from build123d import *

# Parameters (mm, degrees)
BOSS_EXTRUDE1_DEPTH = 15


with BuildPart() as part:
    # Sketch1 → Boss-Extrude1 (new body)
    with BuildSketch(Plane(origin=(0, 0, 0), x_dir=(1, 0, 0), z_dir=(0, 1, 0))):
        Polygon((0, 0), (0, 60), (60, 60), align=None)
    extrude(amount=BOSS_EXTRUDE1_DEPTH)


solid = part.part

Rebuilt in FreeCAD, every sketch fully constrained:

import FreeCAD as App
import Part
import Sketcher
Q = App.Units.Quantity

doc = App.newDocument("Part")
params = doc.addObject("Spreadsheet::Sheet", "Params")
for row, (alias, value) in enumerate([
    ("sketch1_width", "60 mm"),
    ("pad1_length", "15 mm"),
], start=1):
    params.set(f"A{row}", alias)
    params.set(f"B{row}", "=" + value)
    params.setAlias(f"B{row}", alias)

body = doc.addObject("PartDesign::Body", "Body")

# Sketch on XZ plane
sketch1 = body.newObject("Sketcher::SketchObject", "Sketch")
sketch1.AttachmentSupport = (doc.getObject("XZ_Plane"), [""])
sketch1.MapMode = "FlatFace"
sketch1.addGeometry([
    Part.LineSegment(App.Vector(0, -60, 0), App.Vector(0, 0, 0)),
    Part.LineSegment(App.Vector(0, 0, 0), App.Vector(60, -60, 0)),
    Part.LineSegment(App.Vector(60, -60, 0), App.Vector(0, -60, 0)),
], False)
sketch1.addConstraint([
    Sketcher.Constraint("Coincident", 0, 2, 1, 1),
    Sketcher.Constraint("Coincident", 1, 2, 2, 1),
    Sketcher.Constraint("Coincident", 2, 2, 0, 1),
    Sketcher.Constraint("Vertical", 0),
    Sketcher.Constraint("Horizontal", 2),
    Sketcher.Constraint("Coincident", 0, 2, -1, 1),
    Sketcher.Constraint("Equal", 2, 0),
    Sketcher.Constraint("DistanceX", 2, 2, 2, 1, Q("60 mm")),
])
sketch1.setExpression("Constraints[7]", "Params.sketch1_width")
pad1 = body.newObject("PartDesign::Pad", "Pad")
pad1.Profile = sketch1
pad1.setExpression("Length", "Params.pad1_length")
pad1.Reversed = True

doc.recompute()
